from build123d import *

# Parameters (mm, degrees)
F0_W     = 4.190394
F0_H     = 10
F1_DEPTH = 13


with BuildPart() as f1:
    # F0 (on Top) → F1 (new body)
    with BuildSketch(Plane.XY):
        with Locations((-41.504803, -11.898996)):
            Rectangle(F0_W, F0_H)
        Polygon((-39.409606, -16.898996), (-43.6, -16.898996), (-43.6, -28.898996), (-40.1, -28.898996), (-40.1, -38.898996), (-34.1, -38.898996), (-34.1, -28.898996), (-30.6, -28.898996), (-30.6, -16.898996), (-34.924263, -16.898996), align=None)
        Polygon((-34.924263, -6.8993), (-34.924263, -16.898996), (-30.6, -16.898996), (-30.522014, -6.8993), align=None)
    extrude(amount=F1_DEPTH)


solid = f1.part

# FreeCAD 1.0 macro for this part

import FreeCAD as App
import Part
import Sketcher

V = App.Vector
Q = App.Units.Quantity


def add_polygon(sketch, points):
    """Adds a closed chain of lines whose ends are joined by coincident constraints."""
    first, n = sketch.GeometryCount, len(points)
    for a, b in zip(points, points[1:] + points[:1]):
        sketch.addGeometry(Part.LineSegment(App.Vector(*a, 0), App.Vector(*b, 0)), False)
    for i in range(n):
        sketch.addConstraint(Sketcher.Constraint("Coincident", first + i, 2, first + (i + 1) % n, 1))

doc = App.newDocument("Part")
body = doc.addObject("PartDesign::Body", "Body")

sketch1 = body.newObject("Sketcher::SketchObject", "Sketch")
sketch1.AttachmentSupport = (doc.getObject("XY_Plane"), [""])
sketch1.MapMode = "FlatFace"
add_polygon(sketch1, [(-43.6, -6.9), (-43.6, -28.9), (-40.1, -28.9), (-40.1, -38.9), (-34.1, -38.9), (-34.1, -28.9), (-30.6, -28.9), (-30.6, -16.9), (-30.5, -6.9), (-34.9, -6.9), (-34.9, -16.9), (-39.4, -16.9), (-39.4, -6.9)])
sketch1.addConstraint(Sketcher.Constraint("Vertical", 0))
sketch1.addConstraint(Sketcher.Constraint("Horizontal", 1))
sketch1.addConstraint(Sketcher.Constraint("Vertical", 2))
sketch1.addConstraint(Sketcher.Constraint("Horizontal", 3))
sketch1.addConstraint(Sketcher.Constraint("Vertical", 4))
sketch1.addConstraint(Sketcher.Constraint("Horizontal", 5))
sketch1.addConstraint(Sketcher.Constraint("Vertical", 6))
sketch1.addConstraint(Sketcher.Constraint("Horizontal", 8))
sketch1.addConstraint(Sketcher.Constraint("Vertical", 9))
sketch1.addConstraint(Sketcher.Constraint("Horizontal", 10))
sketch1.addConstraint(Sketcher.Constraint("Vertical", 11))
sketch1.addConstraint(Sketcher.Constraint("Horizontal", 12))
sketch1.addConstraint(Sketcher.Constraint("Horizontal", 1, 2, 4, 2))
sketch1.addConstraint(Sketcher.Constraint("Horizontal", 6, 2, 9, 2))
sketch1.addConstraint(Sketcher.Constraint("Equal", 1, 5))
sketch1.addConstraint(Sketcher.Constraint("Equal", 4, 11))
sketch1.addConstraint(Sketcher.Constraint("DistanceX", 3, 1, 3, 2, Q("6 mm")))
sketch1.addConstraint(Sketcher.Constraint("DistanceY", 0, 2, 0, 1, Q("22 mm")))
sketch1.addConstraint(Sketcher.Constraint("DistanceY", 2, 2, 2, 1, Q("10 mm")))
sketch1.addConstraint(Sketcher.Constraint("Distance", 7, Q("10 mm")))
sketch1.addConstraint(Sketcher.Constraint("DistanceX", 1, 1, 1, 2, Q("3.5 mm")))
sketch1.addConstraint(Sketcher.Constraint("DistanceX", 0, 2, -1, 1, Q("43.6 mm")))
sketch1.addConstraint(Sketcher.Constraint("DistanceX", 8, 2, 8, 1, Q("4.402249 mm")))
sketch1.addConstraint(Sketcher.Constraint("DistanceY", 7, 2, -1, 1, Q("6.8993 mm")))
sketch1.addConstraint(Sketcher.Constraint("DistanceX", 10, 2, 10, 1, Q("4.485343 mm")))
sketch1.addConstraint(Sketcher.Constraint("DistanceX", 12, 2, 12, 1, Q("4.190394 mm")))
pad1 = body.newObject("PartDesign::Pad", "Pad")
pad1.Profile = sketch1
pad1.Length = 13

doc.recompute()
